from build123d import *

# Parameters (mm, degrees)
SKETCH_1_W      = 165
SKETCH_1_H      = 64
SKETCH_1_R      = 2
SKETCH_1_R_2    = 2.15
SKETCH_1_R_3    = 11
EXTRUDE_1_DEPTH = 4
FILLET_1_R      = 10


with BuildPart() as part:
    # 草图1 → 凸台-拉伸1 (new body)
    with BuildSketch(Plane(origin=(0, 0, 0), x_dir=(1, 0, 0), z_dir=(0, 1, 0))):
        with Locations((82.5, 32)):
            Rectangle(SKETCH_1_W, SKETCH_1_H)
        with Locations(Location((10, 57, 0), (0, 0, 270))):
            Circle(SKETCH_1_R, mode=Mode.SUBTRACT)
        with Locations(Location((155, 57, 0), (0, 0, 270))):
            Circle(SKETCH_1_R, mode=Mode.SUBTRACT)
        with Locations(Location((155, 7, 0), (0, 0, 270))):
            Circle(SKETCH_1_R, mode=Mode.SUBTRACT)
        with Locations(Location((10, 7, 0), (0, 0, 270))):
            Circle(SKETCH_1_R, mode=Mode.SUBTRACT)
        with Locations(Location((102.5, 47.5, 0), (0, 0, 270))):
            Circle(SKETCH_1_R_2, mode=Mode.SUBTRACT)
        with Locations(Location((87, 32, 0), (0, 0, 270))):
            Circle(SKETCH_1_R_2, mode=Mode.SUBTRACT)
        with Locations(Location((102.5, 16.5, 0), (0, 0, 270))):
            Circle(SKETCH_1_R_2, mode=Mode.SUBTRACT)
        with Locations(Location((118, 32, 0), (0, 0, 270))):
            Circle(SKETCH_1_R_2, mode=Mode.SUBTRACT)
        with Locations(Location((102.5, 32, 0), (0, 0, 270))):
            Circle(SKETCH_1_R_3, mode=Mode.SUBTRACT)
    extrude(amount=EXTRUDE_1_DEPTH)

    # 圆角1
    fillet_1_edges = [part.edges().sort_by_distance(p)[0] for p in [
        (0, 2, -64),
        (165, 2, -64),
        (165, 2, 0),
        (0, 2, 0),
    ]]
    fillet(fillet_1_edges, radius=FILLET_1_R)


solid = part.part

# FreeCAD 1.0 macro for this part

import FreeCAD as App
import Part
import Sketcher
from FreeCAD import Vector


def edges_at(feature, points):
    """Names of the edges that pass closest to the given points."""
    edges = feature.Shape.Edges
    near = lambda p: min(range(len(edges)), key=lambda i: edges[i].distToShape(Part.Vertex(*p))[0])
    return sorted({f"Edge{near(p) + 1}" for p in points})

doc = App.newDocument("Part")
body = doc.addObject("PartDesign::Body", "Body")

# Sketch on XZ plane
sketch1 = doc.addObject("Sketcher::SketchObject", "Sketch")
body.addObject(sketch1)
sketch1.AttachmentSupport = (doc.XZ_Plane, [""])
sketch1.MapMode = "FlatFace"
sketch1.addGeometry([
    Part.LineSegment(Vector(0, -64, 0), Vector(0, 0, 0)),  # 0
    Part.LineSegment(Vector(0, 0, 0), Vector(165, 0, 0)),  # 1
    Part.LineSegment(Vector(165, 0, 0), Vector(165, -64, 0)),  # 2
    Part.LineSegment(Vector(165, -64, 0), Vector(0, -64, 0)),  # 3
    Part.Circle(Vector(10, -7, 0), Vector(0, 0, 1), 2),  # 4
    Part.Circle(Vector(102.5, -16.5, 0), Vector(0, 0, 1), 2.1),  # 5
    Part.Circle(Vector(155, -7, 0), Vector(0, 0, 1), 2),  # 6
    Part.Circle(Vector(10, -57, 0), Vector(0, 0, 1), 2),  # 7
    Part.Circle(Vector(87, -32, 0), Vector(0, 0, 1), 2.1),  # 8
    Part.Circle(Vector(102.5, -32, 0), Vector(0, 0, 1), 11),  # 9
    Part.Circle(Vector(118, -32, 0), Vector(0, 0, 1), 2.1),  # 10
    Part.Circle(Vector(102.5, -47.5, 0), Vector(0, 0, 1), 2.1),  # 11
    Part.Circle(Vector(155, -57, 0), Vector(0, 0, 1), 2),  # 12
], False)
sketch1.addConstraint([
    Sketcher.Constraint("Coincident", 0, 2, 1, 1),
    Sketcher.Constraint("Coincident", 1, 2, 2, 1),
    Sketcher.Constraint("Coincident", 2, 2, 3, 1),
    Sketcher.Constraint("Coincident", 3, 2, 0, 1),
    Sketcher.Constraint("Vertical", 0),
    Sketcher.Constraint("Horizontal", 1),
    Sketcher.Constraint("Vertical", 2),
    Sketcher.Constraint("Horizontal", 3),
    Sketcher.Constraint("Coincident", 0, 2, -1, 1),
    Sketcher.Constraint("Equal", 4, 6),
    Sketcher.Constraint("Equal", 6, 7),
    Sketcher.Constraint("Equal", 5, 8),
    Sketcher.Constraint("Equal", 8, 10),
    Sketcher.Constraint("Equal", 10, 11),
    Sketcher.Constraint("Equal", 7, 12),
    Sketcher.Constraint("Horizontal", 4, 3, 6, 3),
    Sketcher.Constraint("Horizontal", 8, 3, 9, 3),
    Sketcher.Constraint("Horizontal", 9, 3, 10, 3),
    Sketcher.Constraint("Horizontal", 7, 3, 12, 3),
    Sketcher.Constraint("Vertical", 4, 3, 7, 3),
    Sketcher.Constraint("Vertical", 5, 3, 9, 3),
    Sketcher.Constraint("Vertical", 9, 3, 11, 3),
    Sketcher.Constraint("Vertical", 6, 3, 12, 3),
    Sketcher.Constraint("Diameter", 4, 4.0),
    Sketcher.Constraint("Diameter", 9, 22.0),
    Sketcher.Constraint("Diameter", 5, 4.3),
    Sketcher.Constraint("DistanceX", 1, 1, 1, 2, 165.0),
    Sketcher.Constraint("DistanceY", 0, 1, 0, 2, 64.0),
    Sketcher.Constraint("DistanceX", -1, 1, 4, 3, 10.0),
    Sketcher.Constraint("DistanceY", 4, 3, -1, 1, 7.0),
    Sketcher.Constraint("DistanceX", -1, 1, 6, 3, 155.0),
    Sketcher.Constraint("DistanceY", 7, 3, -1, 1, 57.0),
    Sketcher.Constraint("DistanceX", -1, 1, 8, 3, 87.0),
    Sketcher.Constraint("DistanceY", 8, 3, -1, 1, 32.0),
    Sketcher.Constraint("DistanceX", -1, 1, 10, 3, 118.0),
    Sketcher.Constraint("DistanceY", 11, 3, 5, 3, 31.0),
    Sketcher.Constraint("DistanceX", -1, 1, 5, 3, 102.5),
    Sketcher.Constraint("DistanceY", 5, 3, -1, 1, 16.5),
])
pad1 = doc.addObject("PartDesign::Pad", "Pad")
body.addObject(pad1)
pad1.Profile = sketch1
pad1.Length = 4
pad1.Reversed = True
doc.recompute()

fillet = doc.addObject("PartDesign::Fillet", "Fillet")
body.addObject(fillet)
fillet.Base = (pad1, edges_at(pad1, [
    (0, 2, -64),
    (165, 2, -64),
    (165, 2, 0),
    (0, 2, 0),
]))
fillet.Radius = 10

doc.recompute()
